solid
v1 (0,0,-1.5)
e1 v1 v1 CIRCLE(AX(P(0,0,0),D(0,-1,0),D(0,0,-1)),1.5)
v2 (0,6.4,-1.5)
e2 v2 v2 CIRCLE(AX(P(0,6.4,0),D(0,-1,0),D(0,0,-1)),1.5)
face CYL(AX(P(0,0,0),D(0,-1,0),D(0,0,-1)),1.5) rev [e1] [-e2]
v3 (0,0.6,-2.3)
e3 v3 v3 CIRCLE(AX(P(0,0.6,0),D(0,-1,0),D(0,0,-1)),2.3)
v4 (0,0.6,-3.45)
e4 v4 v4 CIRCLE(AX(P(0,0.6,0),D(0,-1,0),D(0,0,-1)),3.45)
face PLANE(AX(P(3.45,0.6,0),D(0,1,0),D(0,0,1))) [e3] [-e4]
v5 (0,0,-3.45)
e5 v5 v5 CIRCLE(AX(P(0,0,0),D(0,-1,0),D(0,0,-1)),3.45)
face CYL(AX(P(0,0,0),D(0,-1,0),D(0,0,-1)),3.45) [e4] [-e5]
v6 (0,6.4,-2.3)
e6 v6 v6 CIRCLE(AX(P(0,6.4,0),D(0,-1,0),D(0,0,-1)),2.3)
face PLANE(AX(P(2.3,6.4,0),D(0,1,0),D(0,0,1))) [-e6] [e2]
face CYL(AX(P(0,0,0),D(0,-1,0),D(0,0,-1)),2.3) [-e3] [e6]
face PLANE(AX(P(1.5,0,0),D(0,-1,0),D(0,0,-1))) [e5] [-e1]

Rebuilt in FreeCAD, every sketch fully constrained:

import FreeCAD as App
import Part
import Sketcher
Q = App.Units.Quantity

doc = App.newDocument("Part")
body = doc.addObject("PartDesign::Body", "Body")

# Sketch on XY plane
sketch1 = body.newObject("Sketcher::SketchObject", "Sketch")
sketch1.AttachmentSupport = (doc.getObject("XY_Plane"), [""])
sketch1.MapMode = "FlatFace"
sketch1.addGeometry([
    Part.LineSegment(App.Vector(1.5, 0, 0), App.Vector(3.45, 0, 0)),  # 0
    Part.LineSegment(App.Vector(3.45, 0, 0), App.Vector(3.45, 0.6, 0)),  # 1
    Part.LineSegment(App.Vector(3.45, 0.6, 0), App.Vector(2.3, 0.6, 0)),  # 2
    Part.LineSegment(App.Vector(2.3, 0.6, 0), App.Vector(2.3, 6.4, 0)),  # 3
    Part.LineSegment(App.Vector(2.3, 6.4, 0), App.Vector(1.5, 6.4, 0)),  # 4
    Part.LineSegment(App.Vector(1.5, 6.4, 0), App.Vector(1.5, 0, 0)),  # 5
], False)
sketch1.addConstraint([
    Sketcher.Constraint("Coincident", 0, 2, 1, 1),
    Sketcher.Constraint("Coincident", 1, 2, 2, 1),
    Sketcher.Constraint("Coincident", 2, 2, 3, 1),
    Sketcher.Constraint("Coincident", 3, 2, 4, 1),
    Sketcher.Constraint("Coincident", 4, 2, 5, 1),
    Sketcher.Constraint("Coincident", 5, 2, 0, 1),
    Sketcher.Constraint("Horizontal", 0),
    Sketcher.Constraint("Vertical", 1),
    Sketcher.Constraint("Horizontal", 2),
    Sketcher.Constraint("Vertical", 3),
    Sketcher.Constraint("Horizontal", 4),
    Sketcher.Constraint("Vertical", 5),
    Sketcher.Constraint("PointOnObject", 0, 2, -1),
    Sketcher.Constraint("DistanceX", 4, 2, 4, 1, Q("0.8 mm")),
    Sketcher.Constraint("DistanceY", 1, 1, 1, 2, Q("0.6 mm")),
    Sketcher.Constraint("DistanceY", 3, 1, 3, 2, Q("5.8 mm")),
    Sketcher.Constraint("DistanceX", 0, 1, 0, 2, Q("1.95 mm")),
    Sketcher.Constraint("DistanceX", -1, 1, 2, 2, Q("2.3 mm")),
])
revolution = body.newObject("PartDesign::Revolution", "Revolution")
revolution.Profile = sketch1
revolution.ReferenceAxis = (sketch1, ["V_Axis"])
revolution.Angle = 360

doc.recompute()
